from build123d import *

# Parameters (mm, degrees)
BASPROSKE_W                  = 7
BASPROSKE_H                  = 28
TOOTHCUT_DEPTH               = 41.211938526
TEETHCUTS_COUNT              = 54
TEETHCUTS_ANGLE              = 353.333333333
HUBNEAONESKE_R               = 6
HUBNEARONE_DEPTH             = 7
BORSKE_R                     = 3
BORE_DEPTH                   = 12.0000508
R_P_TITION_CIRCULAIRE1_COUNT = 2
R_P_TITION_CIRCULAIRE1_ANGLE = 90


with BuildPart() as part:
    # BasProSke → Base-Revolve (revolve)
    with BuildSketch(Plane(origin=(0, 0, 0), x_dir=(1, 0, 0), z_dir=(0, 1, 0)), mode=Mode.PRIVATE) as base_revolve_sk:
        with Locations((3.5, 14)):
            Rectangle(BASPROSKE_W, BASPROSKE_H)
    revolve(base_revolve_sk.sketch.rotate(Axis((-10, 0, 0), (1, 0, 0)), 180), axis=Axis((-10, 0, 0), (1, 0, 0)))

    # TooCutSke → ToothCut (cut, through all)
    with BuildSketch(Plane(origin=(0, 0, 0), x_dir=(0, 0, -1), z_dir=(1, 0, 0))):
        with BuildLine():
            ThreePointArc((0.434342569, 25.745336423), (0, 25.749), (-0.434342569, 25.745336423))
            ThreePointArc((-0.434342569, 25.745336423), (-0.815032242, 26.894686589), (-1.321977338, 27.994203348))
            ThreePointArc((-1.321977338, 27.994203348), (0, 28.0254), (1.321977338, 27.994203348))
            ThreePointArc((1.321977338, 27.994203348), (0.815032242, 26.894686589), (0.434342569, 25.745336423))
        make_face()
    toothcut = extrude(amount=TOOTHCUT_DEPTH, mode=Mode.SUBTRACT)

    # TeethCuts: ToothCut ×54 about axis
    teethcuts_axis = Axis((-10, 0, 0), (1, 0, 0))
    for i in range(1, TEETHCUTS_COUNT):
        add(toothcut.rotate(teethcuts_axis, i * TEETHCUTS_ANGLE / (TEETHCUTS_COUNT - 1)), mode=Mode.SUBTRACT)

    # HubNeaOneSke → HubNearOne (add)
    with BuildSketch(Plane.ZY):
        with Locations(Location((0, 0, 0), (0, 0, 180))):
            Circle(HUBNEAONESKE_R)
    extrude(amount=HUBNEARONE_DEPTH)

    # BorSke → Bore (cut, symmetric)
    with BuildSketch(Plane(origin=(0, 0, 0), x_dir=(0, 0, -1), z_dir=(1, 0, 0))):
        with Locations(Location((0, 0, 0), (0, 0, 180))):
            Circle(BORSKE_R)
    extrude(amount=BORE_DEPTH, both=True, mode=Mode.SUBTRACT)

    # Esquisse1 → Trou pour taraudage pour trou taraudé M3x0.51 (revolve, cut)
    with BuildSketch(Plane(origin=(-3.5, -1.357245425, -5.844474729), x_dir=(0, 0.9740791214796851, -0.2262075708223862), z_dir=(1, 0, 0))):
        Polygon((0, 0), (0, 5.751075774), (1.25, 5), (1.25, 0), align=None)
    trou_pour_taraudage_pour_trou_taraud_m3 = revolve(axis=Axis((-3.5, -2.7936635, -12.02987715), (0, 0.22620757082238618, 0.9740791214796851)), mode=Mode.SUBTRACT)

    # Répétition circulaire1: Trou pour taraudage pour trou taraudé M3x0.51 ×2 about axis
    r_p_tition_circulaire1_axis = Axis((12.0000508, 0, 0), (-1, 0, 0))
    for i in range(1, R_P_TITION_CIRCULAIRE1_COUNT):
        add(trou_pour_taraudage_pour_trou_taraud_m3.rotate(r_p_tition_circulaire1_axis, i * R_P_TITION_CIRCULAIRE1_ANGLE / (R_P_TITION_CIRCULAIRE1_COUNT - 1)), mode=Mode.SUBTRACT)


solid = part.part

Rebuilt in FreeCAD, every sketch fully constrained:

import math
import FreeCAD as App
import Part
import Sketcher

V = App.Vector

doc = App.newDocument("Part")
body = doc.addObject("PartDesign::Body", "Body")

# Sketch on XZ plane
sketch1 = body.newObject("Sketcher::SketchObject", "Sketch")
sketch1.AttachmentSupport = (doc.getObject("XZ_Plane"), [""])
sketch1.MapMode = "FlatFace"
sketch1.addGeometry([
    Part.LineSegment(V(0, -28, 0), V(0, 0, 0)),
    Part.LineSegment(V(0, 0, 0), V(7, 0, 0)),
    Part.LineSegment(V(7, 0, 0), V(7, -28, 0)),
    Part.LineSegment(V(7, -28, 0), V(0, -28, 0)),
], False)
sketch1.addConstraint([
    Sketcher.Constraint("Coincident", 0, 2, 1, 1),
    Sketcher.Constraint("Coincident", 1, 2, 2, 1),
    Sketcher.Constraint("Coincident", 2, 2, 3, 1),
    Sketcher.Constraint("Coincident", 3, 2, 0, 1),
    Sketcher.Constraint("Vertical", 0),
    Sketcher.Constraint("Horizontal", 1),
    Sketcher.Constraint("Vertical", 2),
    Sketcher.Constraint("Horizontal", 3),
    Sketcher.Constraint("Coincident", 0, 2, -1, 1),
    Sketcher.Constraint("DistanceX", 1, 1, 1, 2, 7.0),
    Sketcher.Constraint("DistanceY", 0, 1, 0, 2, 28.0),
])
revolution = body.newObject("PartDesign::Revolution", "Revolution")
revolution.Profile = sketch1
revolution.ReferenceAxis = (sketch1, ["H_Axis"])
revolution.Angle = 360

# Sketch on YZ plane
sketch2 = body.newObject("Sketcher::SketchObject", "Sketch001")
sketch2.AttachmentSupport = (doc.getObject("YZ_Plane"), [""])
sketch2.MapMode = "FlatFace"
sketch2.addGeometry([
    Part.ArcOfCircle(Part.Circle(V(0, 0, 0), V(0, 0, 1), 25.7), math.radians(-0.97), math.radians(0.97)),
    Part.ArcOfCircle(Part.Circle(V(22.9, -10.9, 0), V(0, 0, 1), 10.8), math.radians(62.03), math.radians(74.89)),
    Part.ArcOfCircle(Part.Circle(V(0, 0, 0), V(0, 0, 1), 28), math.radians(-2.7), math.radians(2.7)),
    Part.ArcOfCircle(Part.Circle(V(22.9, 10.9, 0), V(0, 0, 1), 10.8), math.radians(-74.89), math.radians(-62.03)),
], False)
sketch2.addConstraint([
    Sketcher.Constraint("Coincident", 0, 1, 1, 2),
    Sketcher.Constraint("Coincident", 1, 1, 2, 1),
    Sketcher.Constraint("Coincident", 2, 2, 3, 2),
    Sketcher.Constraint("Coincident", 3, 1, 0, 2),
    Sketcher.Constraint("Coincident", 0, 3, -1, 1),
    Sketcher.Constraint("Coincident", 2, 3, -1, 1),
    Sketcher.Constraint("Equal", 1, 3),
    Sketcher.Constraint("Symmetric", 1, 3, 3, 3, -1),
    Sketcher.Constraint("Radius", 1, 10.8),
    Sketcher.Constraint("Radius", 0, 25.749),
    Sketcher.Constraint("Radius", 2, 28.0254),
    Sketcher.Constraint("DistanceY", 1, 1, 3, 3, 12.182802),
    Sketcher.Constraint("DistanceX", -1, 1, 1, 3, 22.929581),
])
pocket1 = body.newObject("PartDesign::Pocket", "Pocket")
pocket1.Profile = sketch2
pocket1.Type = "ThroughAll"
pocket1.Reversed = True
doc.recompute()

polarpattern = body.newObject("PartDesign::PolarPattern", "PolarPattern")
polarpattern.Originals = [pocket1]
polarpattern.Axis = (doc.getObject("X_Axis"), [""])
polarpattern.Angle = 360
polarpattern.Occurrences = 54
body.Tip = polarpattern

# Sketch on YZ plane
sketch3 = body.newObject("Sketcher::SketchObject", "Sketch002")
sketch3.AttachmentSupport = (doc.getObject("YZ_Plane"), [""])
sketch3.MapMode = "FlatFace"
sketch3.addGeometry(Part.Circle(V(0, 0, 0), V(0, 0, 1), 6), False)
sketch3.addConstraint([
    Sketcher.Constraint("Coincident", 0, 3, -1, 1),
    Sketcher.Constraint("Diameter", 0, 12.0),
])
pad1 = body.newObject("PartDesign::Pad", "Pad")
pad1.Profile = sketch3
pad1.Length = 7
pad1.Reversed = True

# Sketch on YZ plane
sketch4 = body.newObject("Sketcher::SketchObject", "Sketch003")
sketch4.AttachmentSupport = (doc.getObject("YZ_Plane"), [""])
sketch4.MapMode = "FlatFace"
sketch4.addGeometry(Part.Circle(V(0, 0, 0), V(0, 0, 1), 3), False)
sketch4.addConstraint([
    Sketcher.Constraint("Coincident", 0, 3, -1, 1),
    Sketcher.Constraint("Diameter", 0, 6.0),
])
pocket2 = body.newObject("PartDesign::Pocket", "Pocket001")
pocket2.Profile = sketch4
pocket2.Length = 24.000102
pocket2.Midplane = True

# Sketch on YZ plane
sketch5 = body.newObject("Sketcher::SketchObject", "Sketch004")
sketch5.AttachmentSupport = (doc.getObject("YZ_Plane"), [""])
sketch5.MapMode = "FlatFace"
sketch5.AttachmentOffset = App.Placement(V(0, 0, -3.5), App.Rotation())
sketch5.addGeometry([
    Part.LineSegment(V(-0.1, -0.2, 0), V(-1.4, -5.8, 0)),
    Part.LineSegment(V(-1.4, -5.8, 0), V(-0.1, -6.1, 0)),
    Part.LineSegment(V(-0.1, -6.1, 0), V(1, -1.3, 0)),
    Part.LineSegment(V(1, -1.3, 0), V(-0.1, -0.2, 0)),
], False)
sketch5.addGeometry(Part.LineSegment(V(-1.4, -5.8, 0), V(-0.1, -0.2, 0)), True)  # axis
sketch5.addConstraint([
    Sketcher.Constraint("Coincident", 0, 2, 1, 1),
    Sketcher.Constraint("Coincident", 1, 2, 2, 1),
    Sketcher.Constraint("Coincident", 2, 2, 3, 1),
    Sketcher.Constraint("Coincident", 3, 2, 0, 1),
    Sketcher.Constraint("Coincident", 4, 1, 0, 2),
    Sketcher.Constraint("Coincident", 4, 2, 3, 2),
    Sketcher.Constraint("Perpendicular", 0, 1),
    Sketcher.Constraint("Perpendicular", 1, 2),
    Sketcher.Constraint("Distance", 2, 5.0),
    Sketcher.Constraint("Distance", 1, 1.25),
    Sketcher.Constraint("DistanceX", 0, 2, 1, 2, 1.217599),
    Sketcher.Constraint("DistanceX", 3, 2, 2, 2, 1.0477),
    Sketcher.Constraint("DistanceX", -1, 1, 2, 2, 0.991391),
    Sketcher.Constraint("DistanceY", 2, 2, -1, 1, 1.256839),
])
groove = body.newObject("PartDesign::Groove", "Groove")
groove.Profile = sketch5
groove.ReferenceAxis = (sketch5, ["Axis0"])
groove.Angle = 360
doc.recompute()

polarpattern2 = body.newObject("PartDesign::PolarPattern", "PolarPattern001")
polarpattern2.Originals = [groove]
polarpattern2.Axis = (doc.getObject("X_Axis"), [""])
polarpattern2.Angle = 90
polarpattern2.Occurrences = 2
polarpattern2.Reversed = True
body.Tip = polarpattern2

doc.recompute()
